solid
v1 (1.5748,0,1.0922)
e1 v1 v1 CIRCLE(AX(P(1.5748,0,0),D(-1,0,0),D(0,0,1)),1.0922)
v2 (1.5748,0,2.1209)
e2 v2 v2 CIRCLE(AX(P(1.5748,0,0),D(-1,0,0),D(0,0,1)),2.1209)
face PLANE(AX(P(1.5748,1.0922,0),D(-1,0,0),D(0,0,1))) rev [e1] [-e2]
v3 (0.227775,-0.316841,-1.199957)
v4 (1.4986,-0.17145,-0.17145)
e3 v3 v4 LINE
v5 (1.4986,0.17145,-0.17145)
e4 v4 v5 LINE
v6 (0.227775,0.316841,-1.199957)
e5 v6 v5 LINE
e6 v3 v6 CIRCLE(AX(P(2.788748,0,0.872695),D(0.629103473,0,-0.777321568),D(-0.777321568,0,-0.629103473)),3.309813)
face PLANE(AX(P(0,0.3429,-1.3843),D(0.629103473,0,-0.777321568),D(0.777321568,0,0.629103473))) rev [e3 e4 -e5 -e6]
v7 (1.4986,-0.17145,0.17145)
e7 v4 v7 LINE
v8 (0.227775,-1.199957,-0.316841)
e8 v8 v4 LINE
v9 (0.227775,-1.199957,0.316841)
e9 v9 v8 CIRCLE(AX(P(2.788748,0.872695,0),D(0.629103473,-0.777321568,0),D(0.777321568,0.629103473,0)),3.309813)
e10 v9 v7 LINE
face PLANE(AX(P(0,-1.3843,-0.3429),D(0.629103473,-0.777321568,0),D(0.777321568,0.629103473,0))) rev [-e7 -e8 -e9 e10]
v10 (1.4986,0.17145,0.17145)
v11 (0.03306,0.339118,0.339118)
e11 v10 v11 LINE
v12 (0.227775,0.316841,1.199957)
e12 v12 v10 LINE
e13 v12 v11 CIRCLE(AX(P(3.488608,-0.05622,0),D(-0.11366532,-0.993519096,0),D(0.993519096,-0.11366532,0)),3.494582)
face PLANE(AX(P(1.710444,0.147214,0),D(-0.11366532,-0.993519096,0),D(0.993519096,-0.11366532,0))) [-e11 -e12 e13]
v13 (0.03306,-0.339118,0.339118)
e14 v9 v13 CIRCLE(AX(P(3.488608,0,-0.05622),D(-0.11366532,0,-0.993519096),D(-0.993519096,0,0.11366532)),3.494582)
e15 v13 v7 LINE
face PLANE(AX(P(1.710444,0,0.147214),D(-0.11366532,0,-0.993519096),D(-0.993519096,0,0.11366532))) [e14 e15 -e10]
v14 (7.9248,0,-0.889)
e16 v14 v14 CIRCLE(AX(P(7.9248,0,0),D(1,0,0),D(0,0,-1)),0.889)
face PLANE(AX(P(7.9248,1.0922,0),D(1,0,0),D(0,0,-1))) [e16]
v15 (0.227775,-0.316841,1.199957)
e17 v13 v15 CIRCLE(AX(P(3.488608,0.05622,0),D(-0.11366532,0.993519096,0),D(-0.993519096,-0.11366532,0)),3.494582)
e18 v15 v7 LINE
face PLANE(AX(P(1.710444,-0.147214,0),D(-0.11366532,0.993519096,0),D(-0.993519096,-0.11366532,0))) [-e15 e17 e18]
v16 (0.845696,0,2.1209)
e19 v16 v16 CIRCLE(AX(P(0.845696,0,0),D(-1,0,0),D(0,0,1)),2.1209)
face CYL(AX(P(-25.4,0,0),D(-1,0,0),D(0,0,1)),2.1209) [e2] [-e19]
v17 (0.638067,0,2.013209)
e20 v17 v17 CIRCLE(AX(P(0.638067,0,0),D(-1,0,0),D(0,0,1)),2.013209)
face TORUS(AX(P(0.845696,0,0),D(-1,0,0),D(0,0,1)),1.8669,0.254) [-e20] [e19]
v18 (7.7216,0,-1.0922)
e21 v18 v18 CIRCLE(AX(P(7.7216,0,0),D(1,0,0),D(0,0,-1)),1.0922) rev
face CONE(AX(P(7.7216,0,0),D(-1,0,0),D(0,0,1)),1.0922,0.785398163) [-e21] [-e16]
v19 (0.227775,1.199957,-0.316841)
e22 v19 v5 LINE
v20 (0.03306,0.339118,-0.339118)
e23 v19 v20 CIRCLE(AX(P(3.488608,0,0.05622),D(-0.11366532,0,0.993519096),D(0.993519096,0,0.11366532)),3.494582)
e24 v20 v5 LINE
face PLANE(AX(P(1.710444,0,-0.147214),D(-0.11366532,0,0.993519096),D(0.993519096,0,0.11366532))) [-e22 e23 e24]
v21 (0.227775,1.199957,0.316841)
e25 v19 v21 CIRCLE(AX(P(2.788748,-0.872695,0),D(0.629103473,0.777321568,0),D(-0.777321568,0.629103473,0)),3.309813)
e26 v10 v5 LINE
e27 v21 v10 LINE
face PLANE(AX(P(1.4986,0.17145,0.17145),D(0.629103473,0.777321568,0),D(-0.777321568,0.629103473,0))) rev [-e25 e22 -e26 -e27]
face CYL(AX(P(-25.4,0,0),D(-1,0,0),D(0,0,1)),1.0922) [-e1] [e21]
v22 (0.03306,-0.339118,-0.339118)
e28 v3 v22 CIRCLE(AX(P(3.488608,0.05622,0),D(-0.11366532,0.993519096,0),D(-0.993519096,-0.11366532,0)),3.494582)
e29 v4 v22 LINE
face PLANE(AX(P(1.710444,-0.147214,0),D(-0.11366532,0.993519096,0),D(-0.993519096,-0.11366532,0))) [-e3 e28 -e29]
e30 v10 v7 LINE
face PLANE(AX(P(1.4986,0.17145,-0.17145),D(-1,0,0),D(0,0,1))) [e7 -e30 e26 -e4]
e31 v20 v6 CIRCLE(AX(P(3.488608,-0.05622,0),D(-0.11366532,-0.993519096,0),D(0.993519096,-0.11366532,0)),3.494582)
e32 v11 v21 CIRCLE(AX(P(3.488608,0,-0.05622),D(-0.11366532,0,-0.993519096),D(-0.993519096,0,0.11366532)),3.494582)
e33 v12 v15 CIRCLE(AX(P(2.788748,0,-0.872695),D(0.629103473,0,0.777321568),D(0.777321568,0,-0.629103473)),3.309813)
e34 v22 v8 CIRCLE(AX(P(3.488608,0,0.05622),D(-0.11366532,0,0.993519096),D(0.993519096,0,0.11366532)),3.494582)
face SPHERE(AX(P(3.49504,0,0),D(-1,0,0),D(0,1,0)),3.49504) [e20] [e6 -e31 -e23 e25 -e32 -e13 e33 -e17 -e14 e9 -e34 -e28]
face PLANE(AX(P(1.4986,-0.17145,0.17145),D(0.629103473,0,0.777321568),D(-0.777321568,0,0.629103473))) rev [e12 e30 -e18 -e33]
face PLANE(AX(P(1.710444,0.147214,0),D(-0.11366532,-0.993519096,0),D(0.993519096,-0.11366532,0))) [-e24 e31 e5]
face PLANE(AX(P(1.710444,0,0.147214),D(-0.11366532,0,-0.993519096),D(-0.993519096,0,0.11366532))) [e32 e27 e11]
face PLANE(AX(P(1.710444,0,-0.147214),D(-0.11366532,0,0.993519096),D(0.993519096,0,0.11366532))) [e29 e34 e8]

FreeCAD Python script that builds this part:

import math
import FreeCAD as App
import Part
import Sketcher

V = App.Vector
Q = App.Units.Quantity


def edges_at(feature, points):
    """Names of the edges that pass closest to the given points."""
    edges = feature.Shape.Edges
    near = lambda p: min(range(len(edges)), key=lambda i: edges[i].distToShape(Part.Vertex(*p))[0])
    return sorted({f"Edge{near(p) + 1}" for p in points})

doc = App.newDocument("Part")
body = doc.addObject("PartDesign::Body", "Body")

# Sketch on XY plane
sketch1 = doc.addObject("Sketcher::SketchObject", "Sketch")
body.addObject(sketch1)
sketch1.AttachmentSupport = (doc.XY_Plane, [""])
sketch1.MapMode = "FlatFace"
sketch1.addGeometry([
    Part.LineSegment(V(1.57, 1.09, 0), V(1.57, 2.12, 0)),  # 0
    Part.LineSegment(V(1.57, 2.12, 0), V(0.85, 2.12, 0)),  # 1
    Part.ArcOfCircle(Part.Circle(V(0.85, 1.87, 0), V(0, 0, 1), 0.25), math.radians(90), math.radians(145)),  # 2
    Part.ArcOfCircle(Part.Circle(V(3.5, 0, 0), V(0, 0, 1), 3.5), math.radians(145), math.radians(180)),  # 3
    Part.LineSegment(V(0, 0, 0), V(7.92, 0, 0)),  # 4
    Part.LineSegment(V(7.92, 0, 0), V(7.92, 1.09, 0)),  # 5
    Part.LineSegment(V(7.92, 1.09, 0), V(1.57, 1.09, 0)),  # 6
], False)
sketch1.addConstraint([
    Sketcher.Constraint("Coincident", 0, 2, 1, 1),
    Sketcher.Constraint("Tangent", 1, 2, 2, 1),
    Sketcher.Constraint("Tangent", 2, 2, 3, 1),
    Sketcher.Constraint("Coincident", 3, 2, 4, 1),
    Sketcher.Constraint("Coincident", 4, 2, 5, 1),
    Sketcher.Constraint("Coincident", 5, 2, 6, 1),
    Sketcher.Constraint("Coincident", 6, 2, 0, 1),
    Sketcher.Constraint("Vertical", 0),
    Sketcher.Constraint("Horizontal", 1),
    Sketcher.Constraint("Horizontal", 4),
    Sketcher.Constraint("Vertical", 5),
    Sketcher.Constraint("Horizontal", 6),
    Sketcher.Constraint("Coincident", 3, 2, -1, 1),
    Sketcher.Constraint("PointOnObject", 3, 3, -1),
    Sketcher.Constraint("Radius", 2, Q("0.01 in")),
    Sketcher.Constraint("DistanceX", 6, 2, 6, 1, Q("0.25 in")),
    Sketcher.Constraint("Radius", 3, Q("0.1376 in")),
    Sketcher.Constraint("DistanceX", 4, 1, 4, 2, Q("0.312 in")),
    Sketcher.Constraint("DistanceY", 5, 1, 5, 2, Q("0.043 in")),
    Sketcher.Constraint("DistanceY", 0, 1, 0, 2, Q("0.0405 in")),
])
revolution = doc.addObject("PartDesign::Revolution", "Revolution")
body.addObject(revolution)
revolution.Profile = sketch1
revolution.ReferenceAxis = (sketch1, ["H_Axis"])
revolution.Angle = 360

# Sketch on YZ plane
sketch2 = doc.addObject("Sketcher::SketchObject", "Sketch001")
body.addObject(sketch2)
sketch2.AttachmentSupport = (doc.YZ_Plane, [""])
sketch2.MapMode = "FlatFace"
sketch2.addGeometry([
    Part.LineSegment(V(-1.4, 0.3, 0), V(-1.4, -0.3, 0)),
    Part.LineSegment(V(-1.4, -0.3, 0), V(1.4, -0.3, 0)),
    Part.LineSegment(V(1.4, -0.3, 0), V(1.4, 0.3, 0)),
    Part.LineSegment(V(1.4, 0.3, 0), V(-1.4, 0.3, 0)),
], False)
sketch2.addConstraint([
    Sketcher.Constraint("Coincident", 0, 2, 1, 1),
    Sketcher.Constraint("Coincident", 1, 2, 2, 1),
    Sketcher.Constraint("Coincident", 2, 2, 3, 1),
    Sketcher.Constraint("Coincident", 3, 2, 0, 1),
    Sketcher.Constraint("Vertical", 0),
    Sketcher.Constraint("Horizontal", 1),
    Sketcher.Constraint("Vertical", 2),
    Sketcher.Constraint("Horizontal", 3),
    Sketcher.Constraint("Symmetric", 0, 2, 2, 2, -1, 1),
    Sketcher.Constraint("DistanceX", 1, 1, 1, 2, Q("0.109 in")),
    Sketcher.Constraint("DistanceY", 0, 2, 0, 1, Q("0.027 in")),
])

# Sketch on YZ plane
sketch3 = doc.addObject("Sketcher::SketchObject", "Sketch002")
body.addObject(sketch3)
sketch3.AttachmentSupport = (doc.YZ_Plane, [""])
sketch3.MapMode = "FlatFace"
sketch3.AttachmentOffset = App.Placement(V(0, 0, 0.059 * 25.4), App.Rotation())
sketch3.addGeometry([
    Part.LineSegment(V(-0.17, 0.17, 0), V(-0.17, -0.17, 0)),
    Part.LineSegment(V(-0.17, -0.17, 0), V(0.17, -0.17, 0)),
    Part.LineSegment(V(0.17, -0.17, 0), V(0.17, 0.17, 0)),
    Part.LineSegment(V(0.17, 0.17, 0), V(-0.17, 0.17, 0)),
], False)
sketch3.addConstraint([
    Sketcher.Constraint("Coincident", 0, 2, 1, 1),
    Sketcher.Constraint("Coincident", 1, 2, 2, 1),
    Sketcher.Constraint("Coincident", 2, 2, 3, 1),
    Sketcher.Constraint("Coincident", 3, 2, 0, 1),
    Sketcher.Constraint("Vertical", 0),
    Sketcher.Constraint("Horizontal", 1),
    Sketcher.Constraint("Vertical", 2),
    Sketcher.Constraint("Horizontal", 3),
    Sketcher.Constraint("Symmetric", 0, 2, 2, 2, -1, 1),
    Sketcher.Constraint("Equal", 3, 0),
    Sketcher.Constraint("DistanceX", 1, 1, 1, 2, Q("0.0135 in")),
])

subtractiveloft = doc.addObject("PartDesign::SubtractiveLoft", "SubtractiveLoft")
body.addObject(subtractiveloft)
subtractiveloft.Profile = sketch2
subtractiveloft.Sections = [sketch3]
doc.recompute()

polarpattern = doc.addObject("PartDesign::PolarPattern", "PolarPattern")
body.addObject(polarpattern)
polarpattern.Originals = [subtractiveloft]
polarpattern.Axis = (doc.X_Axis, [""])
polarpattern.Angle = 90
polarpattern.Occurrences = 2
body.Tip = polarpattern
doc.recompute()

chamfer = doc.addObject("PartDesign::Chamfer", "Chamfer")
body.addObject(chamfer)
chamfer.Base = (polarpattern, edges_at(polarpattern, [(7.925, 0, -1.092)]))
chamfer.Size = Q("0.008 in")

doc.recompute()
